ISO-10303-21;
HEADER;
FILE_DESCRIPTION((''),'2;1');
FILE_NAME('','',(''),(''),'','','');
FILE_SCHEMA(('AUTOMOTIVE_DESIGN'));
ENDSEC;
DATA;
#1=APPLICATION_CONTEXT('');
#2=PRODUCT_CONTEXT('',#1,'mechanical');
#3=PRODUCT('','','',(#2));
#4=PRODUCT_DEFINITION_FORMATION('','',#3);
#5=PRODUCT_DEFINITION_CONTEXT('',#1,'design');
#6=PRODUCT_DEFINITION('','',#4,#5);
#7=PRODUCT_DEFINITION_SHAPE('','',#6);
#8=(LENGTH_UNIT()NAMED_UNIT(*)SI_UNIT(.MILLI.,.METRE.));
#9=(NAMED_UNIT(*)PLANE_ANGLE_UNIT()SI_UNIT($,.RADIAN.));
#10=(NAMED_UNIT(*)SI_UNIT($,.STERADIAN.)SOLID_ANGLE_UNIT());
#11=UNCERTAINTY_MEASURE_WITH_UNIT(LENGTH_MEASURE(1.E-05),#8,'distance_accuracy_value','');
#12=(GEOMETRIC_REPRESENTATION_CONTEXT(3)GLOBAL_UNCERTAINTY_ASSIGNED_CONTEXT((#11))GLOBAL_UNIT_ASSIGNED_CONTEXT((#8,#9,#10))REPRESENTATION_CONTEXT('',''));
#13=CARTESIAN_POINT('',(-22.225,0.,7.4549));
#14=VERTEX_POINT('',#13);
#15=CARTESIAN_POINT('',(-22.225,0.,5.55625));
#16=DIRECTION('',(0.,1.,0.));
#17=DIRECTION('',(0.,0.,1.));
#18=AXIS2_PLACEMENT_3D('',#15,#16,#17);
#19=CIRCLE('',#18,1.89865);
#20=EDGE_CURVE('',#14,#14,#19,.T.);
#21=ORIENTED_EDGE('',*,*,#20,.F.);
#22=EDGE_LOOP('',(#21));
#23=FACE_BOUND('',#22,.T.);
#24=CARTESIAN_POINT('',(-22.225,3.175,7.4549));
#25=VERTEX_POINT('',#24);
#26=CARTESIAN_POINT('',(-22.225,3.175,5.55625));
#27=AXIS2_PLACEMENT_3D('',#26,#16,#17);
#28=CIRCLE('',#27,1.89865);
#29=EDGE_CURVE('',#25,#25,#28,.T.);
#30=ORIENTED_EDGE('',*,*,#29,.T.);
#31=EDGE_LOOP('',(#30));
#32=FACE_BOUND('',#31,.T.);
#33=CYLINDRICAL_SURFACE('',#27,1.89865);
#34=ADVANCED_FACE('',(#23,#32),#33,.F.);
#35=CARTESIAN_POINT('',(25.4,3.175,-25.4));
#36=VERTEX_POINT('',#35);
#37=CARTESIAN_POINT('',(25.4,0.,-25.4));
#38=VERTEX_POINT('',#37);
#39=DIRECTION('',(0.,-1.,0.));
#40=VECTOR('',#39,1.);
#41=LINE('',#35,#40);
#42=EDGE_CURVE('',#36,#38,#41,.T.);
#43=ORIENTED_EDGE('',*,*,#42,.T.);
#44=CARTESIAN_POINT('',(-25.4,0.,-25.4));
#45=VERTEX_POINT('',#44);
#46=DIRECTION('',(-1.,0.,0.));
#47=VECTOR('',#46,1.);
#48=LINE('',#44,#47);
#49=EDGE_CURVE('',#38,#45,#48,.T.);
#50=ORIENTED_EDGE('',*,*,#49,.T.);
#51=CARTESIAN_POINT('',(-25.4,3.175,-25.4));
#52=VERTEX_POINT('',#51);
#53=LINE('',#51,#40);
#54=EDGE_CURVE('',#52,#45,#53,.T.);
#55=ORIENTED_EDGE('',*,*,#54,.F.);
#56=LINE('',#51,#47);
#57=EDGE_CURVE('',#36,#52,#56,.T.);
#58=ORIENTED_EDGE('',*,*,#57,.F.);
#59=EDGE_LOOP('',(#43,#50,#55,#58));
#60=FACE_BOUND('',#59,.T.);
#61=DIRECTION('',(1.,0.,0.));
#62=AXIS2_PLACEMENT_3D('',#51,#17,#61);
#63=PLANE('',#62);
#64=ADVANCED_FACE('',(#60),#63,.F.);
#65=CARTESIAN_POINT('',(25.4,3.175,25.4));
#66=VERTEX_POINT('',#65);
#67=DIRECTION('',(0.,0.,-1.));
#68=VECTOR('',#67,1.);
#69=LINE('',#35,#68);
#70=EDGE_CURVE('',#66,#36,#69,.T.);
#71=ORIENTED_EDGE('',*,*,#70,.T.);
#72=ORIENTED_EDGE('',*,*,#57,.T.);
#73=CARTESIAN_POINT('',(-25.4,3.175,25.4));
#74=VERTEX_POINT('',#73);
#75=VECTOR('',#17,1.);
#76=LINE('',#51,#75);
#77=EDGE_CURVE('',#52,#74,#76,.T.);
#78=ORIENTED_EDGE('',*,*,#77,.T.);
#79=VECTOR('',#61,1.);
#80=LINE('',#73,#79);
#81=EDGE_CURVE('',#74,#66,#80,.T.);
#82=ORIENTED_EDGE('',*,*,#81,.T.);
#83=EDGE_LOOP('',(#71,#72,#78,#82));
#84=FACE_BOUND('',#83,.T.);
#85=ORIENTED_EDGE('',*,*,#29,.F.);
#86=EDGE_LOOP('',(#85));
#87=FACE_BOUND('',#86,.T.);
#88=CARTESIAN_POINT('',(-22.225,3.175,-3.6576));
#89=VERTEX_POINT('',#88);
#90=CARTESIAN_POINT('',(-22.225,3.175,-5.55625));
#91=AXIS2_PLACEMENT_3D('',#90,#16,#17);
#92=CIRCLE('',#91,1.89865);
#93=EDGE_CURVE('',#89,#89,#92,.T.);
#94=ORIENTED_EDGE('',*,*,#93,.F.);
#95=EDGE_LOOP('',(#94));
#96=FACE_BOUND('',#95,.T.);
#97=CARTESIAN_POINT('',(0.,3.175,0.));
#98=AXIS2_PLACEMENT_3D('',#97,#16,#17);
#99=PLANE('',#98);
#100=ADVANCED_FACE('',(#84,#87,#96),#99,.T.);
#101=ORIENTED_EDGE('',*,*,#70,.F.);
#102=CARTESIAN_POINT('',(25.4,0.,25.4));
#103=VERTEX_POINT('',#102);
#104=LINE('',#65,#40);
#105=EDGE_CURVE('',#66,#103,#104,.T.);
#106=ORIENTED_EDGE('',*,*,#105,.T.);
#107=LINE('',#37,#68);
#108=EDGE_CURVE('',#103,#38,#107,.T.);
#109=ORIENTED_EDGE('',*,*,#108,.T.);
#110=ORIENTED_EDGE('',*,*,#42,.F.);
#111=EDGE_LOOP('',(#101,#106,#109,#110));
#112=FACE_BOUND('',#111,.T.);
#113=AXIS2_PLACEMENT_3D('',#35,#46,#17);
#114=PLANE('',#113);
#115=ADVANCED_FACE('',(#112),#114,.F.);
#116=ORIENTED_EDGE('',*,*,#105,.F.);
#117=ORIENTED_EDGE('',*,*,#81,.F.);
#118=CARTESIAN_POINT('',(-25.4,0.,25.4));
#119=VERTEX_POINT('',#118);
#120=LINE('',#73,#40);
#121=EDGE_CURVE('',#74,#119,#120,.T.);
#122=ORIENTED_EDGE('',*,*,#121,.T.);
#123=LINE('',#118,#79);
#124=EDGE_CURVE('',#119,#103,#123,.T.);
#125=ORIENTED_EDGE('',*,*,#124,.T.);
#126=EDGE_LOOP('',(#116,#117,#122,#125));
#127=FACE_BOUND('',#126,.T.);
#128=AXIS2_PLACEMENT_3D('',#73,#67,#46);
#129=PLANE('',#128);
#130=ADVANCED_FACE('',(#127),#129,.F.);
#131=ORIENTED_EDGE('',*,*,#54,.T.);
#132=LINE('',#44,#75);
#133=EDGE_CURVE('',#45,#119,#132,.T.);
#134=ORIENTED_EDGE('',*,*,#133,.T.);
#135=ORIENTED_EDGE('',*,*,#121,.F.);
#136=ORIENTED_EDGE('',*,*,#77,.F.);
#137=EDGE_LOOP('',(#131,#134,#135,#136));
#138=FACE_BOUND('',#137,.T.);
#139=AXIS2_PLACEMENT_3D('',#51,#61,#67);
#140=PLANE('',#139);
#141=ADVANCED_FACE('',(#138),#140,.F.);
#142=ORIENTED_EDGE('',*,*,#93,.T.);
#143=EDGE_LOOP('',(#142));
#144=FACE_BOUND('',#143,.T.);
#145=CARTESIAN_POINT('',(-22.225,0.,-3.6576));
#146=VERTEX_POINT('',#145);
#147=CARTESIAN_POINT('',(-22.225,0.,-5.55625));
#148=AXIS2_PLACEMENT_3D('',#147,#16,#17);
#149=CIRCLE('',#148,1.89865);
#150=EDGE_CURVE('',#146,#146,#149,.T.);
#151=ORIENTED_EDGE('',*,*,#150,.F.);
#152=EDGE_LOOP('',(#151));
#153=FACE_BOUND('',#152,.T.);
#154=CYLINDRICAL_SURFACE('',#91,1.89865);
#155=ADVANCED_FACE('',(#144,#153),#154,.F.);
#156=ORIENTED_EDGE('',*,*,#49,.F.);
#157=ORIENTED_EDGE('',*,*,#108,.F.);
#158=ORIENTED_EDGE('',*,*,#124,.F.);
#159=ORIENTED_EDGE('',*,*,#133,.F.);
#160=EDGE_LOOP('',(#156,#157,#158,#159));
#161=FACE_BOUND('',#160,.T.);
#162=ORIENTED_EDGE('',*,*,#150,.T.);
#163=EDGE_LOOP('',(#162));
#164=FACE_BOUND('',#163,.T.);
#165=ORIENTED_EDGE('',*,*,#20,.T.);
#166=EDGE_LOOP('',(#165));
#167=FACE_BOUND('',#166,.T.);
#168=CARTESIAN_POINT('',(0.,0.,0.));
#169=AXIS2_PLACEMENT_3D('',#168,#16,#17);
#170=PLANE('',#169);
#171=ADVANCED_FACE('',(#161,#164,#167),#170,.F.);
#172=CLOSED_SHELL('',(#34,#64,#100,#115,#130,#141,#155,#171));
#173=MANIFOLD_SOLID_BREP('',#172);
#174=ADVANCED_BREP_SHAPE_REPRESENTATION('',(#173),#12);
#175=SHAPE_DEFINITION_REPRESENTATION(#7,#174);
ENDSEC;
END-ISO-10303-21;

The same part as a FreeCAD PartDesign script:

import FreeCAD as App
import Part
import Sketcher
from FreeCAD import Vector
Q = App.Units.Quantity


def add_polygon(sketch, points):
    """Adds a closed chain of lines whose ends are joined by coincident constraints."""
    first, n = sketch.GeometryCount, len(points)
    for a, b in zip(points, points[1:] + points[:1]):
        sketch.addGeometry(Part.LineSegment(App.Vector(*a, 0), App.Vector(*b, 0)), False)
    for i in range(n):
        sketch.addConstraint(Sketcher.Constraint("Coincident", first + i, 2, first + (i + 1) % n, 1))

doc = App.newDocument("Part")
body = doc.addObject("PartDesign::Body", "Body")

sketch1 = doc.addObject("Sketcher::SketchObject", "Sketch")
body.addObject(sketch1)
sketch1.AttachmentSupport = (doc.XZ_Plane, [""])
sketch1.MapMode = "FlatFace"
add_polygon(sketch1, [(-25, -25), (-25, 25), (25, 25), (25, -25)])
sketch1.addConstraint([
    Sketcher.Constraint("Vertical", 0),
    Sketcher.Constraint("Horizontal", 1),
    Sketcher.Constraint("Vertical", 2),
    Sketcher.Constraint("Horizontal", 3),
    Sketcher.Constraint("Symmetric", 0, 2, 2, 2, -1, 1),
    Sketcher.Constraint("Equal", 3, 0),
    Sketcher.Constraint("DistanceX", 1, 1, 1, 2, Q("2 in")),
])
pad1 = doc.addObject("PartDesign::Pad", "Pad")
body.addObject(pad1)
pad1.Profile = sketch1
pad1.Length = Q("0.125 in")
pad1.Reversed = True

sketch2 = doc.addObject("Sketcher::SketchObject", "Sketch001")
body.addObject(sketch2)
sketch2.AttachmentSupport = (doc.XZ_Plane, [""])
sketch2.MapMode = "FlatFace"
sketch2.AttachmentOffset = App.Placement(Vector(0, 0, -0.125 * 25.4), App.Rotation())
sketch2.addGeometry([
    Part.Circle(Vector(-22.2, -5.6, 0), Vector(0, 0, 1), 1.9),
    Part.Circle(Vector(-22.2, 5.6, 0), Vector(0, 0, 1), 1.9),
], False)
sketch2.addConstraint([
    Sketcher.Constraint("Equal", 0, 1),
    Sketcher.Constraint("Symmetric", 0, 3, 1, 3, -1),
    Sketcher.Constraint("Diameter", 0, Q("0.1495 in")),
    Sketcher.Constraint("DistanceX", 0, 3, -1, 1, Q("0.875 in")),
    Sketcher.Constraint("DistanceY", 0, 3, -1, 1, Q("0.21875 in")),
])
doc.recompute()
hole = doc.addObject("PartDesign::Hole", "Hole")
body.addObject(hole)
hole.Profile = sketch2
hole.ThreadType = "None"
hole.Diameter = Q("0.1495 in")
hole.DepthType = "Dimension"
hole.Depth = Q("0.5 in")
hole.DrillPoint = "Angled"
hole.DrillPointAngle = 118
hole.Reversed = True

doc.recompute()
